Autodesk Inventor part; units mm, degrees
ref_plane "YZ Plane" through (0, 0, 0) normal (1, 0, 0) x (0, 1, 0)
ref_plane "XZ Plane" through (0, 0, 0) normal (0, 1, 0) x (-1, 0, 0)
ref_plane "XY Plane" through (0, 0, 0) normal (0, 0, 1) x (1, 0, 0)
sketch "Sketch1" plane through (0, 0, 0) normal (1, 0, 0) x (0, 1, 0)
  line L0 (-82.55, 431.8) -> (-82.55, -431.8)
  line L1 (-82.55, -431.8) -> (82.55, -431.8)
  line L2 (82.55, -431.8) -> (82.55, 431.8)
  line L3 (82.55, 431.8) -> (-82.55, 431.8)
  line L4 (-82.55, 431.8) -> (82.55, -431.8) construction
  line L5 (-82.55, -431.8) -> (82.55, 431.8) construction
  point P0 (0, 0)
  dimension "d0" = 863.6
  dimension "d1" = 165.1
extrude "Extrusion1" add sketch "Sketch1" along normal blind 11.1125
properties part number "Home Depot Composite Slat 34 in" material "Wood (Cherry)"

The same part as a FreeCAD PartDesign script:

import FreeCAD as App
import Part
import Sketcher
Q = App.Units.Quantity

doc = App.newDocument("Part")
params = doc.addObject("Spreadsheet::Sheet", "Params")
for row, (alias, value) in enumerate([
    ("sketch1_height", "34 in"),
    ("sketch1_width", "6.5 in"),
    ("pad1_length", "0.4375 in"),
], start=1):
    params.set(f"A{row}", alias)
    params.set(f"B{row}", "=" + value)
    params.setAlias(f"B{row}", alias)

body = doc.addObject("PartDesign::Body", "Body")

sketch1 = body.newObject("Sketcher::SketchObject", "Sketch")
sketch1.AttachmentSupport = (doc.getObject("YZ_Plane"), [""])
sketch1.MapMode = "FlatFace"
sketch1.addGeometry([
    Part.LineSegment(App.Vector(82.55, 431.8, 0), App.Vector(-82.55, 431.8, 0)),
    Part.LineSegment(App.Vector(-82.55, 431.8, 0), App.Vector(-82.55, -431.8, 0)),
    Part.LineSegment(App.Vector(-82.55, -431.8, 0), App.Vector(82.55, -431.8, 0)),
    Part.LineSegment(App.Vector(82.55, -431.8, 0), App.Vector(82.55, 431.8, 0)),
], False)
sketch1.addConstraint([
    Sketcher.Constraint("Coincident", 0, 2, 1, 1),
    Sketcher.Constraint("Coincident", 1, 2, 2, 1),
    Sketcher.Constraint("Coincident", 2, 2, 3, 1),
    Sketcher.Constraint("Coincident", 3, 2, 0, 1),
    Sketcher.Constraint("Horizontal", 0),
    Sketcher.Constraint("Vertical", 1),
    Sketcher.Constraint("Horizontal", 2),
    Sketcher.Constraint("Vertical", 3),
    Sketcher.Constraint("Symmetric", 0, 2, 2, 2, -1, 1),
    Sketcher.Constraint("DistanceY", 1, 2, 1, 1, Q("34 in")),
    Sketcher.Constraint("DistanceX", 0, 2, 0, 1, Q("6.5 in")),
])
sketch1.setExpression("Constraints[9]", "Params.sketch1_height")
sketch1.setExpression("Constraints[10]", "Params.sketch1_width")
pad1 = body.newObject("PartDesign::Pad", "Pad")
pad1.Profile = sketch1
pad1.setExpression("Length", "Params.pad1_length")

doc.recompute()
